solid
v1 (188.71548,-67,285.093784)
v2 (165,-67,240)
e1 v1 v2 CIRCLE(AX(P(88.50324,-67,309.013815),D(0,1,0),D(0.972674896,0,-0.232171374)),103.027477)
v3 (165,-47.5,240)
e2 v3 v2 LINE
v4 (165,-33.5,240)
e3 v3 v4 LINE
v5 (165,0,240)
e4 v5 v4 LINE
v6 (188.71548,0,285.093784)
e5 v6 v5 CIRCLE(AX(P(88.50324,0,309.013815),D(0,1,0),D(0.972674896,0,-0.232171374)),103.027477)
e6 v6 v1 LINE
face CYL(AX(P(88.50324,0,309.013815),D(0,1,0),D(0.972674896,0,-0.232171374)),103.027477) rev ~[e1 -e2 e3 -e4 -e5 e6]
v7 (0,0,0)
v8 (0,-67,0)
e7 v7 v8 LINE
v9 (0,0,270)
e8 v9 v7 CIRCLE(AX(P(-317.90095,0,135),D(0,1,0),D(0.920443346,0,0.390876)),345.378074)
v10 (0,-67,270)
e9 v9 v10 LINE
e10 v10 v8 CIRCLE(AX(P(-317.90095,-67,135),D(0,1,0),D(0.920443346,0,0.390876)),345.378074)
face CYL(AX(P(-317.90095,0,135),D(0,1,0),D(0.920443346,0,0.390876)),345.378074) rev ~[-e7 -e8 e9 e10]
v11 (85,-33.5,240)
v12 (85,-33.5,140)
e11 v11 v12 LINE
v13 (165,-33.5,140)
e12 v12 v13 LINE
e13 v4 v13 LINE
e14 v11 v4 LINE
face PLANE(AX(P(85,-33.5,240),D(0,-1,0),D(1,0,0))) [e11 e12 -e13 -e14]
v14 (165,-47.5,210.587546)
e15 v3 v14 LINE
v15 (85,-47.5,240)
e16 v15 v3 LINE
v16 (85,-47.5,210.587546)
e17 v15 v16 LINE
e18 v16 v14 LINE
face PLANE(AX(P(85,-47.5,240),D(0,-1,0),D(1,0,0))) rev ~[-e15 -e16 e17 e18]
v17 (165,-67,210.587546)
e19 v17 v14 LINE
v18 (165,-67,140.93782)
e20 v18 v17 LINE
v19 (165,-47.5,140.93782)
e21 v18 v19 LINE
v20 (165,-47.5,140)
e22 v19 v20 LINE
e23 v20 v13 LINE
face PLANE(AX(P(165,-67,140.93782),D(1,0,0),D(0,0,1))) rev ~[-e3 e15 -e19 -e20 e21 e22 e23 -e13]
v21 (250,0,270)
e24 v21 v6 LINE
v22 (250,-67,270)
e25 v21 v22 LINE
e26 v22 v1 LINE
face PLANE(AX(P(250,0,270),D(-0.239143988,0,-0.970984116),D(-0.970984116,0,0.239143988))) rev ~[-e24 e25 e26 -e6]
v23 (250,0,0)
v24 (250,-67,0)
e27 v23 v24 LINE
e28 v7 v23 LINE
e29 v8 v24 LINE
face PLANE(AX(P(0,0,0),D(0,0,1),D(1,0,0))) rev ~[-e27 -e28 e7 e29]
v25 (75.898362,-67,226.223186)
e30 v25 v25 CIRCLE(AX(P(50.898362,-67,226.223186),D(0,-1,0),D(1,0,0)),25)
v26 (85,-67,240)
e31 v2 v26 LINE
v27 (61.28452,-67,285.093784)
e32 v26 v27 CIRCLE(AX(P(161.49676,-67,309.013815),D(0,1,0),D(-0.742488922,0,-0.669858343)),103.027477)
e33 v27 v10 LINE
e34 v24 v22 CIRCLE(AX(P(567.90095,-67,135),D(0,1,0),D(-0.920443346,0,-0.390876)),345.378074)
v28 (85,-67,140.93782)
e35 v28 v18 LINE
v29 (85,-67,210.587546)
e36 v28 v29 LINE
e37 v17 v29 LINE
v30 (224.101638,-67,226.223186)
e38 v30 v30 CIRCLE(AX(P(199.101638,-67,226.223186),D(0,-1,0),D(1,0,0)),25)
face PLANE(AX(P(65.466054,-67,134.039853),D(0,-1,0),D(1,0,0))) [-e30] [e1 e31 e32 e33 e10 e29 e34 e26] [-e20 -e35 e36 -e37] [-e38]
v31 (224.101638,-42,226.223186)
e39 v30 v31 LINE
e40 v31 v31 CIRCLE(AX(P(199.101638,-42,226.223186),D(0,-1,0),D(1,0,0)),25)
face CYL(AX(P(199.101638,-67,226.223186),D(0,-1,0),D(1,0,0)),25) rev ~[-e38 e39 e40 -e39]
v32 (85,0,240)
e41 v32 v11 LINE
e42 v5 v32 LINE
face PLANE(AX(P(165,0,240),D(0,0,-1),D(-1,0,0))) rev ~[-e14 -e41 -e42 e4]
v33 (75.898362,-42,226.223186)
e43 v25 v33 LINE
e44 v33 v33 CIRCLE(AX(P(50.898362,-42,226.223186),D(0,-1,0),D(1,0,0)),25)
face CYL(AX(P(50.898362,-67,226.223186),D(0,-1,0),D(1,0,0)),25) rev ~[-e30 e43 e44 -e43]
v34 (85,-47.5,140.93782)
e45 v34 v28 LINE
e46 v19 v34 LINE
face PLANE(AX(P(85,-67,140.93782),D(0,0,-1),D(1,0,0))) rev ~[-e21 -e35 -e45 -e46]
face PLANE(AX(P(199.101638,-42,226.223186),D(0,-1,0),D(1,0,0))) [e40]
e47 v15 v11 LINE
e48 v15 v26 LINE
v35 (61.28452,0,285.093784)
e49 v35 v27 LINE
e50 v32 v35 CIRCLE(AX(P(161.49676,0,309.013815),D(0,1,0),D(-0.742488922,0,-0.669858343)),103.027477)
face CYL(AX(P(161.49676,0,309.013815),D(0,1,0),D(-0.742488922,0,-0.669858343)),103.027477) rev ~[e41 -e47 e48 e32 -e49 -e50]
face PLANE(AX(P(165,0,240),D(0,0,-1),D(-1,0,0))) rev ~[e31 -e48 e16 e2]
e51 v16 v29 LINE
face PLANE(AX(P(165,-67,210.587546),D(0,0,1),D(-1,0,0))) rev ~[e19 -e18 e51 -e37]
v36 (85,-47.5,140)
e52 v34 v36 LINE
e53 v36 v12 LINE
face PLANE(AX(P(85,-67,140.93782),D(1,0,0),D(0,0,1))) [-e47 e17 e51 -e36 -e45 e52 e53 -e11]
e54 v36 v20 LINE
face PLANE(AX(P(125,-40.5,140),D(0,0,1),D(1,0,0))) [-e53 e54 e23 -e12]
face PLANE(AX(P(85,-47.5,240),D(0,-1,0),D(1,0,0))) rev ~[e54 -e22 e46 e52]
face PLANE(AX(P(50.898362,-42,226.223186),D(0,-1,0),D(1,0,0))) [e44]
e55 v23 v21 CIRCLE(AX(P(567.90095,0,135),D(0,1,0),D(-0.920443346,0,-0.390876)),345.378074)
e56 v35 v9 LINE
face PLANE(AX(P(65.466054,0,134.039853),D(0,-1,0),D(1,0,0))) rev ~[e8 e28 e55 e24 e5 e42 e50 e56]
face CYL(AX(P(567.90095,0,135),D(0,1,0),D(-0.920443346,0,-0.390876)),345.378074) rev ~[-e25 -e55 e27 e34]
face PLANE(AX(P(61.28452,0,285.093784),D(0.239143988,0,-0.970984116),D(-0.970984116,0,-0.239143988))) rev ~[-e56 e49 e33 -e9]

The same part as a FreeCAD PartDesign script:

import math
import FreeCAD as App
import Part
import Sketcher


def add_polygon(sketch, points):
    """Adds a closed chain of lines whose ends are joined by coincident constraints."""
    first, n = sketch.GeometryCount, len(points)
    for a, b in zip(points, points[1:] + points[:1]):
        sketch.addGeometry(Part.LineSegment(App.Vector(*a, 0), App.Vector(*b, 0)), False)
    for i in range(n):
        sketch.addConstraint(Sketcher.Constraint("Coincident", first + i, 2, first + (i + 1) % n, 1))

doc = App.newDocument("Part")
body = doc.addObject("PartDesign::Body", "Body")

sketch1 = body.newObject("Sketcher::SketchObject", "Sketch")
sketch1.AttachmentSupport = (doc.getObject("XZ_Plane"), [""])
sketch1.MapMode = "FlatFace"
sketch1.addGeometry([
    Part.ArcOfCircle(Part.Circle(App.Vector(-318, 135, 0), App.Vector(0, 0, 1), 345), math.radians(-23), math.radians(23)),
    Part.LineSegment(App.Vector(0, 0, 0), App.Vector(250, 0, 0)),
    Part.ArcOfCircle(Part.Circle(App.Vector(568, 135, 0), App.Vector(0, 0, 1), 345), math.radians(157), math.radians(203)),
    Part.LineSegment(App.Vector(250, 270, 0), App.Vector(189, 285, 0)),
    Part.ArcOfCircle(Part.Circle(App.Vector(89, 309, 0), App.Vector(0, 0, 1), 103), math.radians(-42), math.radians(-13)),
    Part.LineSegment(App.Vector(165, 240, 0), App.Vector(85, 240, 0)),
    Part.ArcOfCircle(Part.Circle(App.Vector(161, 309, 0), App.Vector(0, 0, 1), 103), math.radians(-167), math.radians(-138)),
    Part.LineSegment(App.Vector(61, 285, 0), App.Vector(0, 270, 0)),
], False)
sketch1.addConstraint([
    Sketcher.Constraint("Coincident", 0, 1, 1, 1),
    Sketcher.Constraint("Coincident", 1, 2, 2, 2),
    Sketcher.Constraint("Coincident", 2, 1, 3, 1),
    Sketcher.Constraint("Coincident", 3, 2, 4, 2),
    Sketcher.Constraint("Coincident", 4, 1, 5, 1),
    Sketcher.Constraint("Coincident", 5, 2, 6, 2),
    Sketcher.Constraint("Coincident", 6, 1, 7, 1),
    Sketcher.Constraint("Coincident", 7, 2, 0, 2),
    Sketcher.Constraint("Horizontal", 1),
    Sketcher.Constraint("Horizontal", 5),
    Sketcher.Constraint("Coincident", 0, 1, -1, 1),
    Sketcher.Constraint("Equal", 0, 2),
    Sketcher.Constraint("Equal", 4, 6),
    Sketcher.Constraint("PointOnObject", 7, 2, -2),
    Sketcher.Constraint("Horizontal", 0, 3, 2, 3),
    Sketcher.Constraint("Horizontal", 4, 3, 6, 3),
    Sketcher.Constraint("Horizontal", 3, 2, 6, 1),
    Sketcher.Constraint("Horizontal", 2, 1, 7, 2),
    Sketcher.Constraint("Equal", 3, 7),
    Sketcher.Constraint("DistanceX", 1, 1, 1, 2, 250.0),
    Sketcher.Constraint("DistanceX", 5, 2, 5, 1, 80.0),
    Sketcher.Constraint("DistanceY", -1, 1, 0, 3, 135.0),
    Sketcher.Constraint("DistanceY", -1, 1, 4, 1, 240.0),
    Sketcher.Constraint("Radius", 0, 345.378074),
    Sketcher.Constraint("Radius", 4, 103.027477),
    Sketcher.Constraint("DistanceX", -1, 1, 4, 3, 88.50324),
    Sketcher.Constraint("DistanceX", -1, 1, 3, 2, 188.71548),
])
pad1 = body.newObject("PartDesign::Pad", "Pad")
pad1.Profile = sketch1
pad1.Length = 67

sketch2 = body.newObject("Sketcher::SketchObject", "Sketch001")
sketch2.AttachmentSupport = (doc.getObject("XZ_Plane"), [""])
sketch2.MapMode = "FlatFace"
sketch2.AttachmentOffset = App.Placement(App.Vector(0, 0, 67), App.Rotation())
add_polygon(sketch2, [(85, 211), (85, 141), (165, 141), (165, 211)])
sketch2.addConstraint([
    Sketcher.Constraint("Vertical", 0),
    Sketcher.Constraint("Horizontal", 1),
    Sketcher.Constraint("Vertical", 2),
    Sketcher.Constraint("Horizontal", 3),
    Sketcher.Constraint("DistanceX", 1, 1, 1, 2, 80.0),
    Sketcher.Constraint("DistanceX", -1, 1, 0, 2, 85.0),
    Sketcher.Constraint("DistanceY", 0, 2, 0, 1, 69.649726),
    Sketcher.Constraint("DistanceY", -1, 1, 0, 2, 140.93782),
])
pocket1 = body.newObject("PartDesign::Pocket", "Pocket")
pocket1.Profile = sketch2
pocket1.Length = 28

sketch3 = body.newObject("Sketcher::SketchObject", "Sketch002")
sketch3.AttachmentSupport = (doc.getObject("XZ_Plane"), [""])
sketch3.MapMode = "FlatFace"
sketch3.AttachmentOffset = App.Placement(App.Vector(0, 0, 67), App.Rotation())
add_polygon(sketch3, [(85, 211), (85, 141), (165, 141), (165, 211)])
sketch3.addGeometry(Part.Circle(App.Vector(51, 226, 0), App.Vector(0, 0, 1), 25), False)
sketch3.addGeometry(Part.Circle(App.Vector(199, 226, 0), App.Vector(0, 0, 1), 25), False)
sketch3.addConstraint([
    Sketcher.Constraint("Vertical", 0),
    Sketcher.Constraint("Horizontal", 1),
    Sketcher.Constraint("Vertical", 2),
    Sketcher.Constraint("Horizontal", 3),
    Sketcher.Constraint("Equal", 4, 5),
    Sketcher.Constraint("Horizontal", 4, 3, 5, 3),
    Sketcher.Constraint("Diameter", 4, 50.0),
    Sketcher.Constraint("DistanceX", 1, 1, 1, 2, 80.0),
    Sketcher.Constraint("DistanceX", -1, 1, 0, 2, 85.0),
    Sketcher.Constraint("DistanceY", 0, 2, 0, 1, 69.649726),
    Sketcher.Constraint("DistanceX", -1, 1, 5, 3, 199.101638),
    Sketcher.Constraint("DistanceY", -1, 1, 0, 2, 140.93782),
    Sketcher.Constraint("DistanceX", 4, 3, 1, 2, 114.101638),
    Sketcher.Constraint("DistanceY", 2, 2, 5, 3, 15.63564),
])
pocket2 = body.newObject("PartDesign::Pocket", "Pocket001")
pocket2.Profile = sketch3
pocket2.Length = 25

sketch4 = body.newObject("Sketcher::SketchObject", "Sketch003")
sketch4.AttachmentSupport = (doc.getObject("XY_Plane"), [""])
sketch4.MapMode = "FlatFace"
sketch4.AttachmentOffset = App.Placement(App.Vector(0, 0, 240), App.Rotation())
add_polygon(sketch4, [(85, -34), (85, -48), (165, -48), (165, -34)])
sketch4.addConstraint([
    Sketcher.Constraint("Vertical", 0),
    Sketcher.Constraint("Horizontal", 1),
    Sketcher.Constraint("Vertical", 2),
    Sketcher.Constraint("Horizontal", 3),
    Sketcher.Constraint("DistanceX", 1, 1, 1, 2, 80.0),
    Sketcher.Constraint("DistanceY", 0, 2, 0, 1, 14.0),
    Sketcher.Constraint("DistanceX", -1, 1, 0, 2, 85.0),
    Sketcher.Constraint("DistanceY", 0, 2, -1, 1, 47.5),
])
pocket3 = body.newObject("PartDesign::Pocket", "Pocket002")
pocket3.Profile = sketch4
pocket3.Length = 100

doc.recompute()
